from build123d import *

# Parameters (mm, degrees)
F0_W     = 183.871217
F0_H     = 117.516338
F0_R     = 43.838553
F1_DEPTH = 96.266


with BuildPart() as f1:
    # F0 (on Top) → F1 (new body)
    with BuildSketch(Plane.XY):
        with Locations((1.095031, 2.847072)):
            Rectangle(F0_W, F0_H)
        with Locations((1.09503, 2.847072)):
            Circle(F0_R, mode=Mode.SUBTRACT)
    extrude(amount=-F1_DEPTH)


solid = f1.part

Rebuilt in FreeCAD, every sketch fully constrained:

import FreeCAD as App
import Part
import Sketcher
Q = App.Units.Quantity

doc = App.newDocument("Part")
params = doc.addObject("Spreadsheet::Sheet", "Params")
for row, (alias, value) in enumerate([
    ("pad1_length", "3.79 in"),
], start=1):
    params.set(f"A{row}", alias)
    params.set(f"B{row}", "=" + value)
    params.setAlias(f"B{row}", alias)

body = doc.addObject("PartDesign::Body", "Body")

# Sketch on XY plane
sketch1 = body.newObject("Sketcher::SketchObject", "Sketch")
sketch1.AttachmentSupport = (doc.getObject("XY_Plane"), [""])
sketch1.MapMode = "FlatFace"
sketch1.addGeometry([
    Part.LineSegment(App.Vector(-90.840577, 61.605241, 0), App.Vector(-90.840577, -55.911097, 0)),  # 0
    Part.LineSegment(App.Vector(-90.840577, -55.911097, 0), App.Vector(93.03064, -55.911097, 0)),  # 1
    Part.LineSegment(App.Vector(93.03064, -55.911097, 0), App.Vector(93.03064, 61.605241, 0)),  # 2
    Part.LineSegment(App.Vector(93.03064, 61.605241, 0), App.Vector(-90.840577, 61.605241, 0)),  # 3
    Part.Circle(App.Vector(1.09503, 2.847072, 0), App.Vector(0, 0, 1), 43.838553),  # 4
], False)
sketch1.addConstraint([
    Sketcher.Constraint("Coincident", 0, 2, 1, 1),
    Sketcher.Constraint("Coincident", 1, 2, 2, 1),
    Sketcher.Constraint("Coincident", 2, 2, 3, 1),
    Sketcher.Constraint("Coincident", 3, 2, 0, 1),
    Sketcher.Constraint("Vertical", 0),
    Sketcher.Constraint("Horizontal", 1),
    Sketcher.Constraint("Vertical", 2),
    Sketcher.Constraint("Horizontal", 3),
    Sketcher.Constraint("Diameter", 4, Q("87.677106 mm")),
    Sketcher.Constraint("DistanceX", 1, 1, 1, 2, Q("183.871217 mm")),
    Sketcher.Constraint("DistanceY", 0, 2, 0, 1, Q("117.516338 mm")),
    Sketcher.Constraint("DistanceX", -1, 1, 4, 3, Q("1.09503 mm")),
    Sketcher.Constraint("DistanceY", -1, 1, 4, 3, Q("2.847072 mm")),
    Sketcher.Constraint("DistanceX", -1, 1, 1, 2, Q("93.03064 mm")),
    Sketcher.Constraint("DistanceY", -1, 1, 2, 2, Q("61.605241 mm")),
])
pad1 = body.newObject("PartDesign::Pad", "Pad")
pad1.Profile = sketch1
pad1.setExpression("Length", "Params.pad1_length")
pad1.Reversed = True

doc.recompute()
